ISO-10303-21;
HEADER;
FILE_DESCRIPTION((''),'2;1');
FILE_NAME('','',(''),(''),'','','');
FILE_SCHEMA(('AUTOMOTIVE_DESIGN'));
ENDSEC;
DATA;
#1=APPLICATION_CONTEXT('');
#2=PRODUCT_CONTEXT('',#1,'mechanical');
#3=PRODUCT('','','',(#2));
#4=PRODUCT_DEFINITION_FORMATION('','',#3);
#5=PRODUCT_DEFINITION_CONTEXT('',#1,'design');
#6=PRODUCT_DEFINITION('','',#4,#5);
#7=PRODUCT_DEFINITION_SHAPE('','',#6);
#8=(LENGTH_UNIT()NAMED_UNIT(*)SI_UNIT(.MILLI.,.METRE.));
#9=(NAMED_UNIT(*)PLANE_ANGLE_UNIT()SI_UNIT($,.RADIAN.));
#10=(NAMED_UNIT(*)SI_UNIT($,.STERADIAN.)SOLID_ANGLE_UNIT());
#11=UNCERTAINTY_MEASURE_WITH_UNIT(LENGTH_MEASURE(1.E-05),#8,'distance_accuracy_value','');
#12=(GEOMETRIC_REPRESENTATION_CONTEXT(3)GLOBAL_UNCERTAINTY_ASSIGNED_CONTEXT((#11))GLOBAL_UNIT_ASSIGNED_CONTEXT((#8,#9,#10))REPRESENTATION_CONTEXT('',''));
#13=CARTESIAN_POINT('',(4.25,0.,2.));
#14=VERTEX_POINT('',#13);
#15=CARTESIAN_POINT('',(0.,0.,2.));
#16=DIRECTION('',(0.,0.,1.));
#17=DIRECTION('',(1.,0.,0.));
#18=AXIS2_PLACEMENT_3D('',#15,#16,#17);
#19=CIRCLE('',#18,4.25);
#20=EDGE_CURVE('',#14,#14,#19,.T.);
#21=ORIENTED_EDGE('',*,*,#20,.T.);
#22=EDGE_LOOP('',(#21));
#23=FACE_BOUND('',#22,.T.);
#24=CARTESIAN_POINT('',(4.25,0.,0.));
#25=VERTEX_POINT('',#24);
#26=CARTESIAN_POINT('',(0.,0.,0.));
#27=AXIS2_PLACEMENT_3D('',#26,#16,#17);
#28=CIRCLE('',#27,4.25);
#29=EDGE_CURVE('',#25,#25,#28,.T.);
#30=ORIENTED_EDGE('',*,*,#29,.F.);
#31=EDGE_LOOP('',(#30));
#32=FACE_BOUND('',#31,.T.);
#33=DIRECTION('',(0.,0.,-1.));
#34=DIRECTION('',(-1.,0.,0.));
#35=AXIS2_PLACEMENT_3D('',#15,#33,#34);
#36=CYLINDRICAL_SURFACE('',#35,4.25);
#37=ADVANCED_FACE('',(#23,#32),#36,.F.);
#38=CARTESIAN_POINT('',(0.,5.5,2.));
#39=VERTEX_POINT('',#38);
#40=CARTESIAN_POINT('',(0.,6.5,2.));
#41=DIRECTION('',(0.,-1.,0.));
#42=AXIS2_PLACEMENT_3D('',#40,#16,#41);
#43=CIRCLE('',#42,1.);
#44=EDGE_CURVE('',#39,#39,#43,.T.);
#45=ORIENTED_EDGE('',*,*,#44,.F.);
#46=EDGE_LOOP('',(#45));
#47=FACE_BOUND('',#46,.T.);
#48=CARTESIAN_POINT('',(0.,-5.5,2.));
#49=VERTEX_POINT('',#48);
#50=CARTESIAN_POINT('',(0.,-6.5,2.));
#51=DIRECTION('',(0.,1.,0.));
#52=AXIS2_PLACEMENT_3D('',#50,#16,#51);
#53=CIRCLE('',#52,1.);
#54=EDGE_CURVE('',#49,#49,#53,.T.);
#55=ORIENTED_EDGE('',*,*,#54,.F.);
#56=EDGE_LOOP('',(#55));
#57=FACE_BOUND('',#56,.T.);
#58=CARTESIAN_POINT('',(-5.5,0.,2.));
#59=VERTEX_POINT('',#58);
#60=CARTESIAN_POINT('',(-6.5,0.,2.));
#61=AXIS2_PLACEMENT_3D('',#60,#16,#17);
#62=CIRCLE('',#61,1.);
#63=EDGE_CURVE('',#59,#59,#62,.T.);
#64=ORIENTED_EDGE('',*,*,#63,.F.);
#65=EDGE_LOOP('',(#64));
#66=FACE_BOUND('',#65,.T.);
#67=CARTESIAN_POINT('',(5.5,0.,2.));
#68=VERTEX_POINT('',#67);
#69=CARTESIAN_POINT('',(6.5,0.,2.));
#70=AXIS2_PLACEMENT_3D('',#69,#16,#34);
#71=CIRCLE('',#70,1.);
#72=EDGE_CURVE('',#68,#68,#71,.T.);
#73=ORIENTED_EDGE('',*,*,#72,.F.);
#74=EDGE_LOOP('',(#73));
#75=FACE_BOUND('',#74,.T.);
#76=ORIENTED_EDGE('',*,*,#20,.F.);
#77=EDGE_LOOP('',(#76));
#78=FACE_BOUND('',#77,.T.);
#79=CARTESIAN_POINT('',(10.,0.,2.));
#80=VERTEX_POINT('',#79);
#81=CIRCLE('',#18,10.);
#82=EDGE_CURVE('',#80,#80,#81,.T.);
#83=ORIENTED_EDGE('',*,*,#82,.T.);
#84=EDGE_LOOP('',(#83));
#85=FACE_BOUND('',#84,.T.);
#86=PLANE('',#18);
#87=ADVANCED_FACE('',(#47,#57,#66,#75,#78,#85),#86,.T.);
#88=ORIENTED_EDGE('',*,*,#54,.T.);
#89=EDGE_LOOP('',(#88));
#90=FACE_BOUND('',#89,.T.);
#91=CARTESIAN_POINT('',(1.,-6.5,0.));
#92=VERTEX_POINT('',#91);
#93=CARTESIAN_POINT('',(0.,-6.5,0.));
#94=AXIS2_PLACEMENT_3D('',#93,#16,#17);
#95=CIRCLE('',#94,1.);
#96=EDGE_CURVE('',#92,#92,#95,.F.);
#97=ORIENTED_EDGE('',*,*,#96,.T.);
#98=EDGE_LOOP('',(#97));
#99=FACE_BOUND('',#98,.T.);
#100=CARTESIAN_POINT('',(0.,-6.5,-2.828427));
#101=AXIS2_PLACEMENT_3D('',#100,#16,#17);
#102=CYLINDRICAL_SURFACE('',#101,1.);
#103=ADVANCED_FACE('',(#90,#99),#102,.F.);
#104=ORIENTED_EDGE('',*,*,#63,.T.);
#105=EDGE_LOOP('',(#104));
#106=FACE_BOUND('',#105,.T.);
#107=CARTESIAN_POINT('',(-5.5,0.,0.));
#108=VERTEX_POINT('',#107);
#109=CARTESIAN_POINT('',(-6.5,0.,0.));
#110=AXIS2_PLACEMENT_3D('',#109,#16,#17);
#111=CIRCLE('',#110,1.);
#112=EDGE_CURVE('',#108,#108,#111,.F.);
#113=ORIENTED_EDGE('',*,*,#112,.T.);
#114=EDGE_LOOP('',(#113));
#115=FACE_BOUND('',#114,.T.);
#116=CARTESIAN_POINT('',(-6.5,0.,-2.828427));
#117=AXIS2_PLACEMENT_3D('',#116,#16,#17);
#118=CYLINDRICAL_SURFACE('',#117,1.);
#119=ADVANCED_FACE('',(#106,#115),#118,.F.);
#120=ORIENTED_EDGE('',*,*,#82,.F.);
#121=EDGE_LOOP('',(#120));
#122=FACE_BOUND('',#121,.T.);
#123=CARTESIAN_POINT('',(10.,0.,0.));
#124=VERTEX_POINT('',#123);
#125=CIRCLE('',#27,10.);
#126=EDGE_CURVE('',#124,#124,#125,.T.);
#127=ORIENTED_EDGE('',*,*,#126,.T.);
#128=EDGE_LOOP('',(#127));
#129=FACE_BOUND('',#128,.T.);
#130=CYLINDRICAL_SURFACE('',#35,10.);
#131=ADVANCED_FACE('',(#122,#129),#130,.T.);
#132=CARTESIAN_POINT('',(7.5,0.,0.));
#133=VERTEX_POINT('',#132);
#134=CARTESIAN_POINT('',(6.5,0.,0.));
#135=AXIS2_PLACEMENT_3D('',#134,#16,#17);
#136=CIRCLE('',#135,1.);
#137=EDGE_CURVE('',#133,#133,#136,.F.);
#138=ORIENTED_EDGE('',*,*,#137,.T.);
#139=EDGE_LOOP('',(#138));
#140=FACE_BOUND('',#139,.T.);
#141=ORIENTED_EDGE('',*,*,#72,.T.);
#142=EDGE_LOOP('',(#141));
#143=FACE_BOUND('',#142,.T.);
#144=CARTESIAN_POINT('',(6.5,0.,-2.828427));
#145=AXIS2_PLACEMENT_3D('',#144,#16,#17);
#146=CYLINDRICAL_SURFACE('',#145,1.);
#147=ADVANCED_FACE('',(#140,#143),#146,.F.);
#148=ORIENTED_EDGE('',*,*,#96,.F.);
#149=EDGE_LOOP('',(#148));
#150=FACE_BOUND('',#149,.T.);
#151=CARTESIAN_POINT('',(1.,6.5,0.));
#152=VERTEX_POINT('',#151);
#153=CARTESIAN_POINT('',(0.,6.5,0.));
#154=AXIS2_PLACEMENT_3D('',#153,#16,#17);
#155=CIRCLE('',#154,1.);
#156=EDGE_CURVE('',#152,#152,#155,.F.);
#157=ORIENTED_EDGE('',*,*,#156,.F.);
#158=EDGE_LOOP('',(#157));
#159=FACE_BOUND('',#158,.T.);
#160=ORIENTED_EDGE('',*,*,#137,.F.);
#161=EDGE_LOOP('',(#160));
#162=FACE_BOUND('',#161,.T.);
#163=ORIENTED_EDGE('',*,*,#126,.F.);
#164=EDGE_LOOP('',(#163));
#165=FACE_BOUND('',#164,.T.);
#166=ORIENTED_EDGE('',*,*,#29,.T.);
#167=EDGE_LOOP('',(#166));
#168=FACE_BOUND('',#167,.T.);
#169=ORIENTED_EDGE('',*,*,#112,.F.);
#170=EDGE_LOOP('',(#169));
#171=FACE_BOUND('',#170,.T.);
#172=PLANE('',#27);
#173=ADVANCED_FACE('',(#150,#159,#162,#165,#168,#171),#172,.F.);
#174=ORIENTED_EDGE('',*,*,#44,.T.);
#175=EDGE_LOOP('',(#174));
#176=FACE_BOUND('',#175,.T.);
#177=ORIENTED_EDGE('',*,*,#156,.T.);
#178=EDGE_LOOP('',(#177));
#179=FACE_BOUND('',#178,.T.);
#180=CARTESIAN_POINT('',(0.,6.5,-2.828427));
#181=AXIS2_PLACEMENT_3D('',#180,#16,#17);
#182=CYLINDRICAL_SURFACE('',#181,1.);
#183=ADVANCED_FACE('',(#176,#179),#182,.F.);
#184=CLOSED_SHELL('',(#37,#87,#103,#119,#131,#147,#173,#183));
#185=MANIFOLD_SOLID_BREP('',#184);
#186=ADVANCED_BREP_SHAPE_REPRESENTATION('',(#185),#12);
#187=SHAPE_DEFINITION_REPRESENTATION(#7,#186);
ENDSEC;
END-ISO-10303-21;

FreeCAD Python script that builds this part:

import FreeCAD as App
import Part
import Sketcher

V = App.Vector

doc = App.newDocument("Part")
body = doc.addObject("PartDesign::Body", "Body")

sketch1 = body.newObject("Sketcher::SketchObject", "Sketch")
sketch1.AttachmentSupport = (doc.getObject("XY_Plane"), [""])
sketch1.MapMode = "FlatFace"
sketch1.addGeometry(Part.Circle(V(0, 0, 0), V(0, 0, 1), 10), False)
sketch1.addGeometry(Part.Circle(V(0, 0, 0), V(0, 0, 1), 4.2), False)
sketch1.addConstraint(Sketcher.Constraint("Coincident", 0, 3, -1, 1))
sketch1.addConstraint(Sketcher.Constraint("Coincident", 1, 3, -1, 1))
sketch1.addConstraint(Sketcher.Constraint("Diameter", 0, 20.0))
sketch1.addConstraint(Sketcher.Constraint("Diameter", 1, 8.5))
pad1 = body.newObject("PartDesign::Pad", "Pad")
pad1.Profile = sketch1
pad1.Length = 2

sketch2 = body.newObject("Sketcher::SketchObject", "Sketch001")
sketch2.AttachmentSupport = (doc.getObject("XY_Plane"), [""])
sketch2.MapMode = "FlatFace"
sketch2.AttachmentOffset = App.Placement(V(0, 0, 2), App.Rotation())
sketch2.addGeometry(Part.Circle(V(-6.5, 0, 0), V(0, 0, 1), 1), False)
sketch2.addConstraint(Sketcher.Constraint("PointOnObject", 0, 3, -1))
sketch2.addConstraint(Sketcher.Constraint("Diameter", 0, 2.0))
sketch2.addConstraint(Sketcher.Constraint("DistanceX", 0, 3, -1, 1, 6.5))
pocket1 = body.newObject("PartDesign::Pocket", "Pocket")
pocket1.Profile = sketch2
pocket1.Length = 2
doc.recompute()

polarpattern = body.newObject("PartDesign::PolarPattern", "PolarPattern")
polarpattern.Originals = [pocket1]
polarpattern.Axis = (doc.getObject("Z_Axis"), [""])
polarpattern.Angle = 360
polarpattern.Occurrences = 4
body.Tip = polarpattern

doc.recompute()
